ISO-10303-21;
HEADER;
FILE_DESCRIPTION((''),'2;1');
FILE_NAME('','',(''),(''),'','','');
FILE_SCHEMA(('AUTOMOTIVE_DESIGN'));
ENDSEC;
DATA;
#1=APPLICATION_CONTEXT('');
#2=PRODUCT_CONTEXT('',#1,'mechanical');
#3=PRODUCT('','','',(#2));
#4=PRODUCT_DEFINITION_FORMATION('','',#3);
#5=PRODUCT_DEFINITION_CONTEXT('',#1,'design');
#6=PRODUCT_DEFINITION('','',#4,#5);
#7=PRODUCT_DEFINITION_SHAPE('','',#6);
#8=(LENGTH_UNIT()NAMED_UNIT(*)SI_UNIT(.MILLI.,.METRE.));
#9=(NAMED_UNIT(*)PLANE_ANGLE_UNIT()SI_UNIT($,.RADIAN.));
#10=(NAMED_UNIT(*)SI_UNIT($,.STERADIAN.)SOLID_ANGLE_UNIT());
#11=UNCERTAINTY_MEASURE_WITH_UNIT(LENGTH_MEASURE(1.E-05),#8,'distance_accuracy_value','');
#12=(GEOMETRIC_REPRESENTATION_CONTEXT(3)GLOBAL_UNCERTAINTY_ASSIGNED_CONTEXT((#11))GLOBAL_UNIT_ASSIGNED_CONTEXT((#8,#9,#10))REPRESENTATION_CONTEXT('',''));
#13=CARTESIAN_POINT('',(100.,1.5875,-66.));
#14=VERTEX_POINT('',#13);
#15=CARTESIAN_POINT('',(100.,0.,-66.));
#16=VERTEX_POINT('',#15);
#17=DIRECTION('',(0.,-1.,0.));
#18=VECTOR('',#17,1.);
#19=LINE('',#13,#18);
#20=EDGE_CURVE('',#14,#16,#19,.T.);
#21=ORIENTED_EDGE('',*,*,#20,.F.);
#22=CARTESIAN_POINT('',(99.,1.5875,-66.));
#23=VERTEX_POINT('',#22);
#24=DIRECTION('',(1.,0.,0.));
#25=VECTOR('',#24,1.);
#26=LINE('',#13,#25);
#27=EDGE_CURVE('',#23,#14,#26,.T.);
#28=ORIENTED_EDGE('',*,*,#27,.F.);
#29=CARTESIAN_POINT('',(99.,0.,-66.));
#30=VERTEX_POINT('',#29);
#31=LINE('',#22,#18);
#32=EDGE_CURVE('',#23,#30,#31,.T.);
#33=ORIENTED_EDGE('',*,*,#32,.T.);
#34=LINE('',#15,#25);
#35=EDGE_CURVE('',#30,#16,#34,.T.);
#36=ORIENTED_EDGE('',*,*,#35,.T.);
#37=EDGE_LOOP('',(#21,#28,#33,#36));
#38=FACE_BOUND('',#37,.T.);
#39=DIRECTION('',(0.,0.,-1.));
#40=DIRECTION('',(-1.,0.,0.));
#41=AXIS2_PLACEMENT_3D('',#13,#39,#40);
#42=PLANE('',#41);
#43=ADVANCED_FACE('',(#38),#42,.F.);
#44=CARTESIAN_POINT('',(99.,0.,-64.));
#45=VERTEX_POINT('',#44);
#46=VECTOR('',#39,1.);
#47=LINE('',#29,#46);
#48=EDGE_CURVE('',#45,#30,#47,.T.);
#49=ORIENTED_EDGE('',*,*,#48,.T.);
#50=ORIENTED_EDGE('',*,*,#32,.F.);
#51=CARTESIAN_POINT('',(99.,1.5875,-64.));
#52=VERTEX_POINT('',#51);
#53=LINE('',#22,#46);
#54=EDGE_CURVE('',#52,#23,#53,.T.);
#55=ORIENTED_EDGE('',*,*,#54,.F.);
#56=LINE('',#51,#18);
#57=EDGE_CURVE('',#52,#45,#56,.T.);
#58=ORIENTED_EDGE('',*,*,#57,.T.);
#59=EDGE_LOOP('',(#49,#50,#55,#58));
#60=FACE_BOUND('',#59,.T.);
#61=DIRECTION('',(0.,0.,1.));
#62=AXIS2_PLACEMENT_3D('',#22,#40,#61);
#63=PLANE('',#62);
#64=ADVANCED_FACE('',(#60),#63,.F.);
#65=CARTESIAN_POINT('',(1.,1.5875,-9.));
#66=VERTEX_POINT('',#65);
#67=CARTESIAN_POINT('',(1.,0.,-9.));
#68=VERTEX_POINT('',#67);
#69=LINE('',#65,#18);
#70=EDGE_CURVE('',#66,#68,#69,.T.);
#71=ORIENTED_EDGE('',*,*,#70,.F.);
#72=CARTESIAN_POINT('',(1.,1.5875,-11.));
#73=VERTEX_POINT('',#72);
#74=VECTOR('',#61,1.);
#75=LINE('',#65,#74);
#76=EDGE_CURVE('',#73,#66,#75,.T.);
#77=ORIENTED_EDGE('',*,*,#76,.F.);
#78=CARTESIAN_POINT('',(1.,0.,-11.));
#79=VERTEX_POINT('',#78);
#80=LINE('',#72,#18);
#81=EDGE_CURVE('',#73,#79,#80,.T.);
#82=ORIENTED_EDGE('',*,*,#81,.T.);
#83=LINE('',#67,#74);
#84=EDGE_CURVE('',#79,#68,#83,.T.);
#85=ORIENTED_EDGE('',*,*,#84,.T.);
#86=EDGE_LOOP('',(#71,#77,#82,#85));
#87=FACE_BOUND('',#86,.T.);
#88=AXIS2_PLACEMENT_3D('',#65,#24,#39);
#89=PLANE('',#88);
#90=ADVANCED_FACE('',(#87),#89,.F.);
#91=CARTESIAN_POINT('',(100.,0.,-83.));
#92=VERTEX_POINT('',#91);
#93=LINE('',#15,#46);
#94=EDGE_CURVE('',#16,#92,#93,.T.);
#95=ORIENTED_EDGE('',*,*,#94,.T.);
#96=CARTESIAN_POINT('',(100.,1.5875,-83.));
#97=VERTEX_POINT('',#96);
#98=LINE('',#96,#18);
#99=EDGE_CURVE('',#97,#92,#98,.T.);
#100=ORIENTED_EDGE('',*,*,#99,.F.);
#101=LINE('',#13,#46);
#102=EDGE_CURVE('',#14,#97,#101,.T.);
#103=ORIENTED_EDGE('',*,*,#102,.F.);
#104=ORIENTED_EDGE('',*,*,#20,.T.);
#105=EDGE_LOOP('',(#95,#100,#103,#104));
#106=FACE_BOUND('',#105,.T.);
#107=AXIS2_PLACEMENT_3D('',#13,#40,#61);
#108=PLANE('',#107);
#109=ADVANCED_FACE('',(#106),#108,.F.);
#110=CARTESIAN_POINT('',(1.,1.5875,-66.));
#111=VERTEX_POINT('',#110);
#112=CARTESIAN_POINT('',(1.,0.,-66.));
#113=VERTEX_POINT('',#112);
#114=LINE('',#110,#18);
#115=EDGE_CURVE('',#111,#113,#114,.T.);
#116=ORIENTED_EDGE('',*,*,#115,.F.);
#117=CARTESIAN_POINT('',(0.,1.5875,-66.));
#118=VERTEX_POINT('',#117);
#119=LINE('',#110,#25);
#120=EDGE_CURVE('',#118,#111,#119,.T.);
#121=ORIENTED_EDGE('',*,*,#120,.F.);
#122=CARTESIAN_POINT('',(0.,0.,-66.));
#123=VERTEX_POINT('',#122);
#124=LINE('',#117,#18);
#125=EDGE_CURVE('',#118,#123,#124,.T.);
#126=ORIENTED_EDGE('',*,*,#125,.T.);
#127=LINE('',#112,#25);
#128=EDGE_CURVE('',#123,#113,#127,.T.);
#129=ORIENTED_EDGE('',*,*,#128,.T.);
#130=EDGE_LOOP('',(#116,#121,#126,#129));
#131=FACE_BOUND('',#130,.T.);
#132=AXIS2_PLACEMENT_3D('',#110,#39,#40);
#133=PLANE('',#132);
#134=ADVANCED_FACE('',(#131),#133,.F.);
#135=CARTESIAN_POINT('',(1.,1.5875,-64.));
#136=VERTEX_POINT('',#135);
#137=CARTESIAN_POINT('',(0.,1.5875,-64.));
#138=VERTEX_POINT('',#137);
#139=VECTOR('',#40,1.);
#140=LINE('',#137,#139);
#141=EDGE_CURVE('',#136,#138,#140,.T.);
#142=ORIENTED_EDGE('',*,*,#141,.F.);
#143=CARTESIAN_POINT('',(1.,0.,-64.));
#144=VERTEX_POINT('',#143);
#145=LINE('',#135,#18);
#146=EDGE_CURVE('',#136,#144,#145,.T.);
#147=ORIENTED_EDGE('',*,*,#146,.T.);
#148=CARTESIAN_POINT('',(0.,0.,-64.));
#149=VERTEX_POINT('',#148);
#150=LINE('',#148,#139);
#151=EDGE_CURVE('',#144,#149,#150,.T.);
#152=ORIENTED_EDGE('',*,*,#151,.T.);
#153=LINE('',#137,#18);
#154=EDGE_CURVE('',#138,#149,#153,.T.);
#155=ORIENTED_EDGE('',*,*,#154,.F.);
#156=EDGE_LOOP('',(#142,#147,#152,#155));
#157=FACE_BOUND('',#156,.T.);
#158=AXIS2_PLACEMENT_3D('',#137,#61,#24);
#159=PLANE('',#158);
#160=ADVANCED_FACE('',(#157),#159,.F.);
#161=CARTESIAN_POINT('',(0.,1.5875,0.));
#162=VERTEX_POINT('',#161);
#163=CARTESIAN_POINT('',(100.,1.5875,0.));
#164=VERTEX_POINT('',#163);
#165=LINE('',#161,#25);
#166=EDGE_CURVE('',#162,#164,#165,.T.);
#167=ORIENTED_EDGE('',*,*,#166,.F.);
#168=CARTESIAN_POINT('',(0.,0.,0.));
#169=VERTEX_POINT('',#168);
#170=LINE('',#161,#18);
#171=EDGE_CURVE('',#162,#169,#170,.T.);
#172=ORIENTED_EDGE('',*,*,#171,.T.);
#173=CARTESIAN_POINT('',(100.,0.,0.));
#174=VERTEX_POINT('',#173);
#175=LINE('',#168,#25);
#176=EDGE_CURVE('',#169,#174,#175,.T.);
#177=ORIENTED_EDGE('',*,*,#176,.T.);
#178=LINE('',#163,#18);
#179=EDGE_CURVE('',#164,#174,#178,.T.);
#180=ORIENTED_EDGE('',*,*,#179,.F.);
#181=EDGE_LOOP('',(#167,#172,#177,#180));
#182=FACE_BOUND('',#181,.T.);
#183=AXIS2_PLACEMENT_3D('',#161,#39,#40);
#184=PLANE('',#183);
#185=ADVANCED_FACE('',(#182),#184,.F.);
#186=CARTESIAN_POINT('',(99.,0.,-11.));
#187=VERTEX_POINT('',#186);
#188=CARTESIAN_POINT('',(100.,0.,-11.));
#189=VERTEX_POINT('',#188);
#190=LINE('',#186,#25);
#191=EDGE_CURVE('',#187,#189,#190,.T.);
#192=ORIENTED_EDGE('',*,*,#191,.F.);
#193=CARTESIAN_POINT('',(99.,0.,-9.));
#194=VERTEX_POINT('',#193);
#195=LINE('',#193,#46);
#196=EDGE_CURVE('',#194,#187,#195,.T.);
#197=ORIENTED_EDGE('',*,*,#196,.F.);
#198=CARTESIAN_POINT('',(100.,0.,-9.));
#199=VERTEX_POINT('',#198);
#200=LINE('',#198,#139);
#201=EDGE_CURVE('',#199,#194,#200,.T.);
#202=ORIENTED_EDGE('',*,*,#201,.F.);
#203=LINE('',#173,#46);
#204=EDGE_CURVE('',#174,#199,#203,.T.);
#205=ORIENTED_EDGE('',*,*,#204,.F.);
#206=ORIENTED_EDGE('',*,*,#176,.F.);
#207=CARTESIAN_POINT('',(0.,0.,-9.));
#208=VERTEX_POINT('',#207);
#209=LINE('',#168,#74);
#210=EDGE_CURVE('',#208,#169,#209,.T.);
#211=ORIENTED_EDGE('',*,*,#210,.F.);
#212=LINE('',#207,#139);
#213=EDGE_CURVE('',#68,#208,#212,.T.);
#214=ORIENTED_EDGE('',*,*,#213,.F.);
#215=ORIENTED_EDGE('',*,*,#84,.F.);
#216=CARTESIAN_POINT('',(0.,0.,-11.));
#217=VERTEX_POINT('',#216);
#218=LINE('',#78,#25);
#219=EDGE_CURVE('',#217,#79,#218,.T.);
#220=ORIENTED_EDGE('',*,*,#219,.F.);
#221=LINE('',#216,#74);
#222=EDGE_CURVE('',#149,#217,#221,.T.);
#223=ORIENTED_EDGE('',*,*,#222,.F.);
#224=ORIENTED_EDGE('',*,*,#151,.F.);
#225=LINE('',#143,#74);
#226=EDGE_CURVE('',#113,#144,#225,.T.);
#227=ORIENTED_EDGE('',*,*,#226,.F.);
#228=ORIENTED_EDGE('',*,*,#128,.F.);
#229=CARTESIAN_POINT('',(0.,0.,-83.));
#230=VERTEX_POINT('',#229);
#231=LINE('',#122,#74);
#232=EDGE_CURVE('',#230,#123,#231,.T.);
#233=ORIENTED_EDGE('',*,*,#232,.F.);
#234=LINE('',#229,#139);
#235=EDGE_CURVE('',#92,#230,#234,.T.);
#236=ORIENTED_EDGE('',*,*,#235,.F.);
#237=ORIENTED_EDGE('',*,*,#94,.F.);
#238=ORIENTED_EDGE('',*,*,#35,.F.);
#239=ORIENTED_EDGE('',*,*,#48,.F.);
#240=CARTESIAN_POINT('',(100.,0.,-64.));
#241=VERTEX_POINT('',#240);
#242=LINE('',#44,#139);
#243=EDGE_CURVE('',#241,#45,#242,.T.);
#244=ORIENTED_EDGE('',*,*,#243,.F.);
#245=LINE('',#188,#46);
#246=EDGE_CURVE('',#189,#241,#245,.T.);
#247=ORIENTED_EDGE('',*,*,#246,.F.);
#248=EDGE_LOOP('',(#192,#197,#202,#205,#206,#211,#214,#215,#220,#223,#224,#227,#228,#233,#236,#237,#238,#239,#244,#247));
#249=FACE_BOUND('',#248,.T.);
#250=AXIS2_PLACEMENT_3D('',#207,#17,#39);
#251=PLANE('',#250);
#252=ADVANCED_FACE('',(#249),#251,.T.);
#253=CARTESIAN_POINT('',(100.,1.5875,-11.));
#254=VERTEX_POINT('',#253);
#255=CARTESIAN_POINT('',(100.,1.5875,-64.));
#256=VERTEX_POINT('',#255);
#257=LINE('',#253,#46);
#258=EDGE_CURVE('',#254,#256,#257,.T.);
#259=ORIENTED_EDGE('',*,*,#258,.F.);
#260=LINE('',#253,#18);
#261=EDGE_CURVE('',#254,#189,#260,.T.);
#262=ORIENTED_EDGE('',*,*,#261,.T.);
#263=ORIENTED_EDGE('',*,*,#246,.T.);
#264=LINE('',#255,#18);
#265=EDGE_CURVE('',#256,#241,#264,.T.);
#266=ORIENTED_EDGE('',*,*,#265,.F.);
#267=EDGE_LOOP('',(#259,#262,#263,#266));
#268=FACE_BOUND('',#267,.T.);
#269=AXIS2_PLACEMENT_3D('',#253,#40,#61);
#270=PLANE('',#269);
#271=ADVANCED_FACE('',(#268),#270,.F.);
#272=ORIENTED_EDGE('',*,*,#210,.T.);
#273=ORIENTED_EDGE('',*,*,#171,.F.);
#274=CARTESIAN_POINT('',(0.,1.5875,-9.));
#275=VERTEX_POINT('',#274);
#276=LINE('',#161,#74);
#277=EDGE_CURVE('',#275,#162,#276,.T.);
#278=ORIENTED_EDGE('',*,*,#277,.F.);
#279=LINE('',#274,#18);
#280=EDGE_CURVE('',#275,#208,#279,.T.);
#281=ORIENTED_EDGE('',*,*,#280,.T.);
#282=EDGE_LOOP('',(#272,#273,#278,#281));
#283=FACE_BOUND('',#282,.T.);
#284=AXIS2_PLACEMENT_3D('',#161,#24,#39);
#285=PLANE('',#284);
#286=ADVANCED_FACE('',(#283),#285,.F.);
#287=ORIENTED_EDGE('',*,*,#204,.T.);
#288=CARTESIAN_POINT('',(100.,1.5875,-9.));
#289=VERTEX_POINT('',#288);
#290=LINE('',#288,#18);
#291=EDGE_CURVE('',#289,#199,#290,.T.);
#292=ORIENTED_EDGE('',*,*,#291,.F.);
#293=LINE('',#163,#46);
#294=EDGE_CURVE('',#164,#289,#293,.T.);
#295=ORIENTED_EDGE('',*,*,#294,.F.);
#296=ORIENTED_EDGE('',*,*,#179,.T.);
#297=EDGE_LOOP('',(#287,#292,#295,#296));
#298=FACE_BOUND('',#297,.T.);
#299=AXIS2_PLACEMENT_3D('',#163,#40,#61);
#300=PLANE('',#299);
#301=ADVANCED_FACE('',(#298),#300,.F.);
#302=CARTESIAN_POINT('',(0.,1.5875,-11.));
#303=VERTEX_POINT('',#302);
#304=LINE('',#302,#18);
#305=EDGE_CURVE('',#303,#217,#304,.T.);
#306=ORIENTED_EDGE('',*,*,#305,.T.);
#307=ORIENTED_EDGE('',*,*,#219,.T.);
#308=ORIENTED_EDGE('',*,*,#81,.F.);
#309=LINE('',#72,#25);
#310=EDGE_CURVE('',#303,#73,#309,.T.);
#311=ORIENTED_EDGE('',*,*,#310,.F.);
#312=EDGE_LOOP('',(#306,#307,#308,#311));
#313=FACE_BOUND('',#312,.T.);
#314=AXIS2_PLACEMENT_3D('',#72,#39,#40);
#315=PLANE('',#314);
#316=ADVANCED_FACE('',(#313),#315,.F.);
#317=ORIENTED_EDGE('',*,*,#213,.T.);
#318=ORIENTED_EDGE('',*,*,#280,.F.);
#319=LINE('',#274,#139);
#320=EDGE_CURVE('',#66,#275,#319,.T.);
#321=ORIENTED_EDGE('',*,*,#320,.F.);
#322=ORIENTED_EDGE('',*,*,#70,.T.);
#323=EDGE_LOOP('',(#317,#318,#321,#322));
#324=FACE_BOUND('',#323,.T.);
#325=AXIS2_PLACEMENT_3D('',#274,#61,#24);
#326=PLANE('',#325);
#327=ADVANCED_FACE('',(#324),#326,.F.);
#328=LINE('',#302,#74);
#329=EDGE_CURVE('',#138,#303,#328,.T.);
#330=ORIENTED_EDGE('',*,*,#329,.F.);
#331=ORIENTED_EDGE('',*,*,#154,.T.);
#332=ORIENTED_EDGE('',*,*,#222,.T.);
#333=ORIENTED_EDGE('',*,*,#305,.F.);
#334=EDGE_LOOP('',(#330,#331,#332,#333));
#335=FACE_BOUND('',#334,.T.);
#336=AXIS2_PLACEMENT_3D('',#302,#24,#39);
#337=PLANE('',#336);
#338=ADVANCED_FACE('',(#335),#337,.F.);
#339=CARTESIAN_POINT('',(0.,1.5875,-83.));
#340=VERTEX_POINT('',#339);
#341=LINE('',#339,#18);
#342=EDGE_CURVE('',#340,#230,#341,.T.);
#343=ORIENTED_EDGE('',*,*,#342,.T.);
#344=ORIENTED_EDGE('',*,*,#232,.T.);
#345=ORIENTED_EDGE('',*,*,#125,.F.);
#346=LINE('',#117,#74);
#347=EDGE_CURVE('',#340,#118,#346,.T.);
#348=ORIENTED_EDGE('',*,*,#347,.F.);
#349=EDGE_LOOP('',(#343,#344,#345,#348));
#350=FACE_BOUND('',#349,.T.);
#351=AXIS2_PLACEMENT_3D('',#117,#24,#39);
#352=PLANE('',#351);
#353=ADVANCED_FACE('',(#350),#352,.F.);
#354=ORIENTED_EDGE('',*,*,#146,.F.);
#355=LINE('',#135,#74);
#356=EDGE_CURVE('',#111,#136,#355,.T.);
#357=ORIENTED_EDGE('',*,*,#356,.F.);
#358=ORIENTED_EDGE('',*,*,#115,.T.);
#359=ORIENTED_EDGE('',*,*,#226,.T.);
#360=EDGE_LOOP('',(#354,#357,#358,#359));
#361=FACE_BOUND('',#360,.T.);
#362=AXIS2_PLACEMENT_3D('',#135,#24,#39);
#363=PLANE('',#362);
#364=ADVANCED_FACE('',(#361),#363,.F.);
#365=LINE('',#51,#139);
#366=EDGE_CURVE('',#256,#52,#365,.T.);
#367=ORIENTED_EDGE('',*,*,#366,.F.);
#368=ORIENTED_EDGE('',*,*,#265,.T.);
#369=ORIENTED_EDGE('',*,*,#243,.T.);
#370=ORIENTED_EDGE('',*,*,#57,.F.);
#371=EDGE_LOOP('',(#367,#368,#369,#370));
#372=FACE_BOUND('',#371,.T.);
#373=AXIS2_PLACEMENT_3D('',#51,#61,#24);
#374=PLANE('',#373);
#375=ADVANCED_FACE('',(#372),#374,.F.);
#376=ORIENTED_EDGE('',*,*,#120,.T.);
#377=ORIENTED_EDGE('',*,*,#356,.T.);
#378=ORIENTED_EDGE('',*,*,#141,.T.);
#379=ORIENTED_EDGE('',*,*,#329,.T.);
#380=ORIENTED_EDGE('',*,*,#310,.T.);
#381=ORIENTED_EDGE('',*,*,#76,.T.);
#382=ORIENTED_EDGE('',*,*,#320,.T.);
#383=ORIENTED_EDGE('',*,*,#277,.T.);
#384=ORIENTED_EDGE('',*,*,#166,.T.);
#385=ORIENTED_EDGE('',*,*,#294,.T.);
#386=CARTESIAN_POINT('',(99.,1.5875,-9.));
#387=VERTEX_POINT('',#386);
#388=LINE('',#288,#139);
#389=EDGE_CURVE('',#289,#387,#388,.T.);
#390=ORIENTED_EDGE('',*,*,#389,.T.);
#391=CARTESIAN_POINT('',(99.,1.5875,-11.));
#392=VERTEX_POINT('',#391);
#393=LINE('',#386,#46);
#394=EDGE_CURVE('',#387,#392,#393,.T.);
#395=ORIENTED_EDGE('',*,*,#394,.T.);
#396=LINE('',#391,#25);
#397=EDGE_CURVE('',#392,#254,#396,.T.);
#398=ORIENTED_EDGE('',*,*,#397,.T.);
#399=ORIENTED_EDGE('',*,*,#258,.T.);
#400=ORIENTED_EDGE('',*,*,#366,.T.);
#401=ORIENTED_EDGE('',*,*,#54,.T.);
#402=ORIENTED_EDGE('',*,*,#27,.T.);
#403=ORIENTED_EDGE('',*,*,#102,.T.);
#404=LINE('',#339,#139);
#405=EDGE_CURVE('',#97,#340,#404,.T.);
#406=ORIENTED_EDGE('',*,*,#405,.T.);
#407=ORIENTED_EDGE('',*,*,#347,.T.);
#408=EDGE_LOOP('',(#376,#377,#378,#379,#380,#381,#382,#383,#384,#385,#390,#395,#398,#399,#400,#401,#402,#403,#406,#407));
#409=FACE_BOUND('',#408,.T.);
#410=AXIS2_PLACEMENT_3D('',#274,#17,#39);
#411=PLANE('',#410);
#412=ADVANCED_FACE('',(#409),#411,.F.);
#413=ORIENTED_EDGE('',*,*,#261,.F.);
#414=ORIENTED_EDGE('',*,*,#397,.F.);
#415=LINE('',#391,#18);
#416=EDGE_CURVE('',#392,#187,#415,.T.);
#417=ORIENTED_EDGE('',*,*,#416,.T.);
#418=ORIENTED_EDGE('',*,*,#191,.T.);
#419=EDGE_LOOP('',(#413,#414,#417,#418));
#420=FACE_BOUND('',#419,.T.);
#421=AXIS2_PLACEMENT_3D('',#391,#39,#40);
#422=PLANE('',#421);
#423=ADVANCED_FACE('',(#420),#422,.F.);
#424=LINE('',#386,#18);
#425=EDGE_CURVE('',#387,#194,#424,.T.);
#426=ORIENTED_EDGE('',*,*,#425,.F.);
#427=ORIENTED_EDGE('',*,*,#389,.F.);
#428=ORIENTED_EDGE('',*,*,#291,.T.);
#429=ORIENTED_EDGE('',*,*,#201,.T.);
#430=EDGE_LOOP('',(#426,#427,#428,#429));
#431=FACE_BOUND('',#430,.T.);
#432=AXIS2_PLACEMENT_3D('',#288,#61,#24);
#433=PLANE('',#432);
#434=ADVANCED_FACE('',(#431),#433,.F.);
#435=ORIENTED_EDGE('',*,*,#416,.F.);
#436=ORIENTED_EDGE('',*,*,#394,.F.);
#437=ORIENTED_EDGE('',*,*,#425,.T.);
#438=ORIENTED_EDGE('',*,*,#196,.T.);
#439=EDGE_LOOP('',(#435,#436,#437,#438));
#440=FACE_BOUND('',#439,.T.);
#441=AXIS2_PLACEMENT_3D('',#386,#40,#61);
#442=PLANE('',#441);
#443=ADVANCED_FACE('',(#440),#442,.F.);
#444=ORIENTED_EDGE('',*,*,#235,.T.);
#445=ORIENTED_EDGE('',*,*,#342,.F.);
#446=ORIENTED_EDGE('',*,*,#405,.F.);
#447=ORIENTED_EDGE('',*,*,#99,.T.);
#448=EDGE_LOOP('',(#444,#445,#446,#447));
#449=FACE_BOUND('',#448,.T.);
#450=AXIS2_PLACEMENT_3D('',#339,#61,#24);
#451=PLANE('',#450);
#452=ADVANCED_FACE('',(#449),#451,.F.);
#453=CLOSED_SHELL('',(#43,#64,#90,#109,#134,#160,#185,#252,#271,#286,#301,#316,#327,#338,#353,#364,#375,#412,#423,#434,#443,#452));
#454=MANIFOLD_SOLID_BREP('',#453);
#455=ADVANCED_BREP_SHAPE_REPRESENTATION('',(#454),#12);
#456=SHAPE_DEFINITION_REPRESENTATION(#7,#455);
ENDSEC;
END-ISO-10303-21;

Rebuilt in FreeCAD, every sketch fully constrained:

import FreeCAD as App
import Part
import Sketcher
Q = App.Units.Quantity


def add_polygon(sketch, points):
    """Adds a closed chain of lines whose ends are joined by coincident constraints."""
    first, n = sketch.GeometryCount, len(points)
    for a, b in zip(points, points[1:] + points[:1]):
        sketch.addGeometry(Part.LineSegment(App.Vector(*a, 0), App.Vector(*b, 0)), False)
    for i in range(n):
        sketch.addConstraint(Sketcher.Constraint("Coincident", first + i, 2, first + (i + 1) % n, 1))

doc = App.newDocument("Part")
body = doc.addObject("PartDesign::Body", "Body")

# Sketch on XZ plane
sketch1 = body.newObject("Sketcher::SketchObject", "Sketch")
sketch1.AttachmentSupport = (doc.getObject("XZ_Plane"), [""])
sketch1.MapMode = "FlatFace"
add_polygon(sketch1, [(1, -9), (0, -9), (0, 0), (100, 0), (100, -9), (99, -9), (99, -11), (100, -11), (100, -64), (99, -64), (99, -66), (100, -66), (100, -83), (0, -83), (0, -66), (1, -66), (1, -64), (0, -64), (0, -11), (1, -11)])  # lines 0-19
sketch1.addConstraint([
    Sketcher.Constraint("Horizontal", 0),
    Sketcher.Constraint("Vertical", 1),
    Sketcher.Constraint("Horizontal", 2),
    Sketcher.Constraint("Vertical", 3),
    Sketcher.Constraint("Horizontal", 4),
    Sketcher.Constraint("Vertical", 5),
    Sketcher.Constraint("Horizontal", 6),
    Sketcher.Constraint("Vertical", 7),
    Sketcher.Constraint("Horizontal", 8),
    Sketcher.Constraint("Vertical", 9),
    Sketcher.Constraint("Horizontal", 10),
    Sketcher.Constraint("Vertical", 11),
    Sketcher.Constraint("Horizontal", 12),
    Sketcher.Constraint("Vertical", 13),
    Sketcher.Constraint("Horizontal", 14),
    Sketcher.Constraint("Vertical", 15),
    Sketcher.Constraint("Horizontal", 16),
    Sketcher.Constraint("Vertical", 17),
    Sketcher.Constraint("Horizontal", 18),
    Sketcher.Constraint("Vertical", 19),
    Sketcher.Constraint("Coincident", 1, 2, -1, 1),
    Sketcher.Constraint("PointOnObject", 12, 2, -2),
    Sketcher.Constraint("PointOnObject", 16, 2, -2),
    Sketcher.Constraint("Horizontal", 0, 2, 3, 2),
    Sketcher.Constraint("Horizontal", 10, 2, 13, 2),
    Sketcher.Constraint("Horizontal", 8, 2, 15, 2),
    Sketcher.Constraint("Horizontal", 6, 2, 17, 2),
    Sketcher.Constraint("Vertical", 3, 2, 6, 2),
    Sketcher.Constraint("Vertical", 5, 2, 8, 2),
    Sketcher.Constraint("Vertical", 7, 2, 10, 2),
    Sketcher.Constraint("Vertical", 15, 2, 18, 2),
    Sketcher.Constraint("Equal", 0, 4),
    Sketcher.Constraint("Equal", 5, 9),
    Sketcher.Constraint("DistanceX", 0, 2, 0, 1, Q("1 mm")),
    Sketcher.Constraint("DistanceX", 2, 1, 2, 2, Q("100 mm")),
    Sketcher.Constraint("DistanceY", 1, 1, 1, 2, Q("9 mm")),
    Sketcher.Constraint("DistanceY", 5, 2, 5, 1, Q("2 mm")),
    Sketcher.Constraint("DistanceY", 7, 2, 7, 1, Q("53 mm")),
    Sketcher.Constraint("DistanceY", 11, 2, 11, 1, Q("17 mm")),
])
pad1 = body.newObject("PartDesign::Pad", "Pad")
pad1.Profile = sketch1
pad1.Length = 1.5875
pad1.Reversed = True

doc.recompute()
